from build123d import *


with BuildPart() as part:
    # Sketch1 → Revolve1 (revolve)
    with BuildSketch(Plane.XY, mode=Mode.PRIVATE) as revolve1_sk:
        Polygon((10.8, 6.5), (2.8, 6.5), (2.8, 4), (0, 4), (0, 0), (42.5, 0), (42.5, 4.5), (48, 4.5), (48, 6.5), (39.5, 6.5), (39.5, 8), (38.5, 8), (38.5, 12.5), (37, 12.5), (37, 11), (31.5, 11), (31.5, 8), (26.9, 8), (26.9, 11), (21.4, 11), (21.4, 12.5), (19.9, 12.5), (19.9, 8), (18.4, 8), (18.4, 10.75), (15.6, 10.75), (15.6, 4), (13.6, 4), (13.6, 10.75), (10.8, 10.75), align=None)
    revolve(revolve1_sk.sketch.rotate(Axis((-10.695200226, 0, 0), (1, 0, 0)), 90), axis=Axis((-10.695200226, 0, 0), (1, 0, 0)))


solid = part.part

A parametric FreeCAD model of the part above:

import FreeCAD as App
import Part
import Sketcher
Q = App.Units.Quantity


def add_polygon(sketch, points):
    """Adds a closed chain of lines whose ends are joined by coincident constraints."""
    first, n = sketch.GeometryCount, len(points)
    for a, b in zip(points, points[1:] + points[:1]):
        sketch.addGeometry(Part.LineSegment(App.Vector(*a, 0), App.Vector(*b, 0)), False)
    for i in range(n):
        sketch.addConstraint(Sketcher.Constraint("Coincident", first + i, 2, first + (i + 1) % n, 1))

doc = App.newDocument("Part")
body = doc.addObject("PartDesign::Body", "Body")

# Sketch on XY plane
sketch1 = body.newObject("Sketcher::SketchObject", "Sketch")
sketch1.AttachmentSupport = (doc.getObject("XY_Plane"), [""])
sketch1.MapMode = "FlatFace"
add_polygon(sketch1, [(10.8, 6.5), (2.8, 6.5), (2.8, 4), (0, 4), (0, 0), (42.5, 0), (42.5, 4.5), (48, 4.5), (48, 6.5), (39.5, 6.5), (39.5, 8), (38.5, 8), (38.5, 12.5), (37, 12.5), (37, 11), (31.5, 11), (31.5, 8), (26.9, 8), (26.9, 11), (21.4, 11), (21.4, 12.5), (19.9, 12.5), (19.9, 8), (18.4, 8), (18.4, 10.8), (15.6, 10.8), (15.6, 4), (13.6, 4), (13.6, 10.8), (10.8, 10.8)])  # lines 0-29
sketch1.addConstraint([
    Sketcher.Constraint("Horizontal", 0),
    Sketcher.Constraint("Vertical", 1),
    Sketcher.Constraint("Horizontal", 2),
    Sketcher.Constraint("Vertical", 3),
    Sketcher.Constraint("Horizontal", 4),
    Sketcher.Constraint("Vertical", 5),
    Sketcher.Constraint("Horizontal", 6),
    Sketcher.Constraint("Vertical", 7),
    Sketcher.Constraint("Horizontal", 8),
    Sketcher.Constraint("Vertical", 9),
    Sketcher.Constraint("Horizontal", 10),
    Sketcher.Constraint("Vertical", 11),
    Sketcher.Constraint("Horizontal", 12),
    Sketcher.Constraint("Vertical", 13),
    Sketcher.Constraint("Horizontal", 14),
    Sketcher.Constraint("Vertical", 15),
    Sketcher.Constraint("Horizontal", 16),
    Sketcher.Constraint("Vertical", 17),
    Sketcher.Constraint("Horizontal", 18),
    Sketcher.Constraint("Vertical", 19),
    Sketcher.Constraint("Horizontal", 20),
    Sketcher.Constraint("Vertical", 21),
    Sketcher.Constraint("Horizontal", 22),
    Sketcher.Constraint("Vertical", 23),
    Sketcher.Constraint("Horizontal", 24),
    Sketcher.Constraint("Vertical", 25),
    Sketcher.Constraint("Horizontal", 26),
    Sketcher.Constraint("Vertical", 27),
    Sketcher.Constraint("Horizontal", 28),
    Sketcher.Constraint("Vertical", 29),
    Sketcher.Constraint("Coincident", 3, 2, -1, 1),
    Sketcher.Constraint("Horizontal", 0, 2, 7, 2),
    Sketcher.Constraint("Horizontal", 10, 2, 15, 2),
    Sketcher.Constraint("Horizontal", 14, 2, 17, 2),
    Sketcher.Constraint("Horizontal", 12, 2, 19, 2),
    Sketcher.Constraint("Horizontal", 16, 2, 21, 2),
    Sketcher.Constraint("Horizontal", 2, 2, 25, 2),
    Sketcher.Constraint("Horizontal", 24, 2, 27, 2),
    Sketcher.Constraint("Equal", 6, 14),
    Sketcher.Constraint("Equal", 14, 18),
    Sketcher.Constraint("Equal", 12, 20),
    Sketcher.Constraint("Equal", 20, 22),
    Sketcher.Constraint("Equal", 2, 24),
    Sketcher.Constraint("Equal", 24, 28),
    Sketcher.Constraint("Equal", 26, 7),
    Sketcher.Constraint("Equal", 22, 9),
    Sketcher.Constraint("Equal", 5, 11),
    Sketcher.Constraint("Equal", 9, 13),
    Sketcher.Constraint("DistanceX", 0, 2, 0, 1, Q("8 mm")),
    Sketcher.Constraint("DistanceX", 10, 2, 10, 1, Q("1 mm")),
    Sketcher.Constraint("DistanceX", 26, 2, 26, 1, Q("2 mm")),
    Sketcher.Constraint("DistanceY", 3, 2, 3, 1, Q("4 mm")),
    Sketcher.Constraint("DistanceY", 15, 2, 15, 1, Q("3 mm")),
    Sketcher.Constraint("DistanceX", 2, 2, 2, 1, Q("2.8 mm")),
    Sketcher.Constraint("DistanceX", 4, 1, 4, 2, Q("42.5 mm")),
    Sketcher.Constraint("DistanceX", 6, 1, 6, 2, Q("5.5 mm")),
    Sketcher.Constraint("DistanceX", 8, 2, 8, 1, Q("8.5 mm")),
    Sketcher.Constraint("DistanceX", 12, 2, 12, 1, Q("1.5 mm")),
    Sketcher.Constraint("DistanceY", 23, 1, 23, 2, Q("2.75 mm")),
])
revolution = body.newObject("PartDesign::Revolution", "Revolution")
revolution.Profile = sketch1
revolution.ReferenceAxis = (sketch1, ["H_Axis"])
revolution.Angle = 360

doc.recompute()
